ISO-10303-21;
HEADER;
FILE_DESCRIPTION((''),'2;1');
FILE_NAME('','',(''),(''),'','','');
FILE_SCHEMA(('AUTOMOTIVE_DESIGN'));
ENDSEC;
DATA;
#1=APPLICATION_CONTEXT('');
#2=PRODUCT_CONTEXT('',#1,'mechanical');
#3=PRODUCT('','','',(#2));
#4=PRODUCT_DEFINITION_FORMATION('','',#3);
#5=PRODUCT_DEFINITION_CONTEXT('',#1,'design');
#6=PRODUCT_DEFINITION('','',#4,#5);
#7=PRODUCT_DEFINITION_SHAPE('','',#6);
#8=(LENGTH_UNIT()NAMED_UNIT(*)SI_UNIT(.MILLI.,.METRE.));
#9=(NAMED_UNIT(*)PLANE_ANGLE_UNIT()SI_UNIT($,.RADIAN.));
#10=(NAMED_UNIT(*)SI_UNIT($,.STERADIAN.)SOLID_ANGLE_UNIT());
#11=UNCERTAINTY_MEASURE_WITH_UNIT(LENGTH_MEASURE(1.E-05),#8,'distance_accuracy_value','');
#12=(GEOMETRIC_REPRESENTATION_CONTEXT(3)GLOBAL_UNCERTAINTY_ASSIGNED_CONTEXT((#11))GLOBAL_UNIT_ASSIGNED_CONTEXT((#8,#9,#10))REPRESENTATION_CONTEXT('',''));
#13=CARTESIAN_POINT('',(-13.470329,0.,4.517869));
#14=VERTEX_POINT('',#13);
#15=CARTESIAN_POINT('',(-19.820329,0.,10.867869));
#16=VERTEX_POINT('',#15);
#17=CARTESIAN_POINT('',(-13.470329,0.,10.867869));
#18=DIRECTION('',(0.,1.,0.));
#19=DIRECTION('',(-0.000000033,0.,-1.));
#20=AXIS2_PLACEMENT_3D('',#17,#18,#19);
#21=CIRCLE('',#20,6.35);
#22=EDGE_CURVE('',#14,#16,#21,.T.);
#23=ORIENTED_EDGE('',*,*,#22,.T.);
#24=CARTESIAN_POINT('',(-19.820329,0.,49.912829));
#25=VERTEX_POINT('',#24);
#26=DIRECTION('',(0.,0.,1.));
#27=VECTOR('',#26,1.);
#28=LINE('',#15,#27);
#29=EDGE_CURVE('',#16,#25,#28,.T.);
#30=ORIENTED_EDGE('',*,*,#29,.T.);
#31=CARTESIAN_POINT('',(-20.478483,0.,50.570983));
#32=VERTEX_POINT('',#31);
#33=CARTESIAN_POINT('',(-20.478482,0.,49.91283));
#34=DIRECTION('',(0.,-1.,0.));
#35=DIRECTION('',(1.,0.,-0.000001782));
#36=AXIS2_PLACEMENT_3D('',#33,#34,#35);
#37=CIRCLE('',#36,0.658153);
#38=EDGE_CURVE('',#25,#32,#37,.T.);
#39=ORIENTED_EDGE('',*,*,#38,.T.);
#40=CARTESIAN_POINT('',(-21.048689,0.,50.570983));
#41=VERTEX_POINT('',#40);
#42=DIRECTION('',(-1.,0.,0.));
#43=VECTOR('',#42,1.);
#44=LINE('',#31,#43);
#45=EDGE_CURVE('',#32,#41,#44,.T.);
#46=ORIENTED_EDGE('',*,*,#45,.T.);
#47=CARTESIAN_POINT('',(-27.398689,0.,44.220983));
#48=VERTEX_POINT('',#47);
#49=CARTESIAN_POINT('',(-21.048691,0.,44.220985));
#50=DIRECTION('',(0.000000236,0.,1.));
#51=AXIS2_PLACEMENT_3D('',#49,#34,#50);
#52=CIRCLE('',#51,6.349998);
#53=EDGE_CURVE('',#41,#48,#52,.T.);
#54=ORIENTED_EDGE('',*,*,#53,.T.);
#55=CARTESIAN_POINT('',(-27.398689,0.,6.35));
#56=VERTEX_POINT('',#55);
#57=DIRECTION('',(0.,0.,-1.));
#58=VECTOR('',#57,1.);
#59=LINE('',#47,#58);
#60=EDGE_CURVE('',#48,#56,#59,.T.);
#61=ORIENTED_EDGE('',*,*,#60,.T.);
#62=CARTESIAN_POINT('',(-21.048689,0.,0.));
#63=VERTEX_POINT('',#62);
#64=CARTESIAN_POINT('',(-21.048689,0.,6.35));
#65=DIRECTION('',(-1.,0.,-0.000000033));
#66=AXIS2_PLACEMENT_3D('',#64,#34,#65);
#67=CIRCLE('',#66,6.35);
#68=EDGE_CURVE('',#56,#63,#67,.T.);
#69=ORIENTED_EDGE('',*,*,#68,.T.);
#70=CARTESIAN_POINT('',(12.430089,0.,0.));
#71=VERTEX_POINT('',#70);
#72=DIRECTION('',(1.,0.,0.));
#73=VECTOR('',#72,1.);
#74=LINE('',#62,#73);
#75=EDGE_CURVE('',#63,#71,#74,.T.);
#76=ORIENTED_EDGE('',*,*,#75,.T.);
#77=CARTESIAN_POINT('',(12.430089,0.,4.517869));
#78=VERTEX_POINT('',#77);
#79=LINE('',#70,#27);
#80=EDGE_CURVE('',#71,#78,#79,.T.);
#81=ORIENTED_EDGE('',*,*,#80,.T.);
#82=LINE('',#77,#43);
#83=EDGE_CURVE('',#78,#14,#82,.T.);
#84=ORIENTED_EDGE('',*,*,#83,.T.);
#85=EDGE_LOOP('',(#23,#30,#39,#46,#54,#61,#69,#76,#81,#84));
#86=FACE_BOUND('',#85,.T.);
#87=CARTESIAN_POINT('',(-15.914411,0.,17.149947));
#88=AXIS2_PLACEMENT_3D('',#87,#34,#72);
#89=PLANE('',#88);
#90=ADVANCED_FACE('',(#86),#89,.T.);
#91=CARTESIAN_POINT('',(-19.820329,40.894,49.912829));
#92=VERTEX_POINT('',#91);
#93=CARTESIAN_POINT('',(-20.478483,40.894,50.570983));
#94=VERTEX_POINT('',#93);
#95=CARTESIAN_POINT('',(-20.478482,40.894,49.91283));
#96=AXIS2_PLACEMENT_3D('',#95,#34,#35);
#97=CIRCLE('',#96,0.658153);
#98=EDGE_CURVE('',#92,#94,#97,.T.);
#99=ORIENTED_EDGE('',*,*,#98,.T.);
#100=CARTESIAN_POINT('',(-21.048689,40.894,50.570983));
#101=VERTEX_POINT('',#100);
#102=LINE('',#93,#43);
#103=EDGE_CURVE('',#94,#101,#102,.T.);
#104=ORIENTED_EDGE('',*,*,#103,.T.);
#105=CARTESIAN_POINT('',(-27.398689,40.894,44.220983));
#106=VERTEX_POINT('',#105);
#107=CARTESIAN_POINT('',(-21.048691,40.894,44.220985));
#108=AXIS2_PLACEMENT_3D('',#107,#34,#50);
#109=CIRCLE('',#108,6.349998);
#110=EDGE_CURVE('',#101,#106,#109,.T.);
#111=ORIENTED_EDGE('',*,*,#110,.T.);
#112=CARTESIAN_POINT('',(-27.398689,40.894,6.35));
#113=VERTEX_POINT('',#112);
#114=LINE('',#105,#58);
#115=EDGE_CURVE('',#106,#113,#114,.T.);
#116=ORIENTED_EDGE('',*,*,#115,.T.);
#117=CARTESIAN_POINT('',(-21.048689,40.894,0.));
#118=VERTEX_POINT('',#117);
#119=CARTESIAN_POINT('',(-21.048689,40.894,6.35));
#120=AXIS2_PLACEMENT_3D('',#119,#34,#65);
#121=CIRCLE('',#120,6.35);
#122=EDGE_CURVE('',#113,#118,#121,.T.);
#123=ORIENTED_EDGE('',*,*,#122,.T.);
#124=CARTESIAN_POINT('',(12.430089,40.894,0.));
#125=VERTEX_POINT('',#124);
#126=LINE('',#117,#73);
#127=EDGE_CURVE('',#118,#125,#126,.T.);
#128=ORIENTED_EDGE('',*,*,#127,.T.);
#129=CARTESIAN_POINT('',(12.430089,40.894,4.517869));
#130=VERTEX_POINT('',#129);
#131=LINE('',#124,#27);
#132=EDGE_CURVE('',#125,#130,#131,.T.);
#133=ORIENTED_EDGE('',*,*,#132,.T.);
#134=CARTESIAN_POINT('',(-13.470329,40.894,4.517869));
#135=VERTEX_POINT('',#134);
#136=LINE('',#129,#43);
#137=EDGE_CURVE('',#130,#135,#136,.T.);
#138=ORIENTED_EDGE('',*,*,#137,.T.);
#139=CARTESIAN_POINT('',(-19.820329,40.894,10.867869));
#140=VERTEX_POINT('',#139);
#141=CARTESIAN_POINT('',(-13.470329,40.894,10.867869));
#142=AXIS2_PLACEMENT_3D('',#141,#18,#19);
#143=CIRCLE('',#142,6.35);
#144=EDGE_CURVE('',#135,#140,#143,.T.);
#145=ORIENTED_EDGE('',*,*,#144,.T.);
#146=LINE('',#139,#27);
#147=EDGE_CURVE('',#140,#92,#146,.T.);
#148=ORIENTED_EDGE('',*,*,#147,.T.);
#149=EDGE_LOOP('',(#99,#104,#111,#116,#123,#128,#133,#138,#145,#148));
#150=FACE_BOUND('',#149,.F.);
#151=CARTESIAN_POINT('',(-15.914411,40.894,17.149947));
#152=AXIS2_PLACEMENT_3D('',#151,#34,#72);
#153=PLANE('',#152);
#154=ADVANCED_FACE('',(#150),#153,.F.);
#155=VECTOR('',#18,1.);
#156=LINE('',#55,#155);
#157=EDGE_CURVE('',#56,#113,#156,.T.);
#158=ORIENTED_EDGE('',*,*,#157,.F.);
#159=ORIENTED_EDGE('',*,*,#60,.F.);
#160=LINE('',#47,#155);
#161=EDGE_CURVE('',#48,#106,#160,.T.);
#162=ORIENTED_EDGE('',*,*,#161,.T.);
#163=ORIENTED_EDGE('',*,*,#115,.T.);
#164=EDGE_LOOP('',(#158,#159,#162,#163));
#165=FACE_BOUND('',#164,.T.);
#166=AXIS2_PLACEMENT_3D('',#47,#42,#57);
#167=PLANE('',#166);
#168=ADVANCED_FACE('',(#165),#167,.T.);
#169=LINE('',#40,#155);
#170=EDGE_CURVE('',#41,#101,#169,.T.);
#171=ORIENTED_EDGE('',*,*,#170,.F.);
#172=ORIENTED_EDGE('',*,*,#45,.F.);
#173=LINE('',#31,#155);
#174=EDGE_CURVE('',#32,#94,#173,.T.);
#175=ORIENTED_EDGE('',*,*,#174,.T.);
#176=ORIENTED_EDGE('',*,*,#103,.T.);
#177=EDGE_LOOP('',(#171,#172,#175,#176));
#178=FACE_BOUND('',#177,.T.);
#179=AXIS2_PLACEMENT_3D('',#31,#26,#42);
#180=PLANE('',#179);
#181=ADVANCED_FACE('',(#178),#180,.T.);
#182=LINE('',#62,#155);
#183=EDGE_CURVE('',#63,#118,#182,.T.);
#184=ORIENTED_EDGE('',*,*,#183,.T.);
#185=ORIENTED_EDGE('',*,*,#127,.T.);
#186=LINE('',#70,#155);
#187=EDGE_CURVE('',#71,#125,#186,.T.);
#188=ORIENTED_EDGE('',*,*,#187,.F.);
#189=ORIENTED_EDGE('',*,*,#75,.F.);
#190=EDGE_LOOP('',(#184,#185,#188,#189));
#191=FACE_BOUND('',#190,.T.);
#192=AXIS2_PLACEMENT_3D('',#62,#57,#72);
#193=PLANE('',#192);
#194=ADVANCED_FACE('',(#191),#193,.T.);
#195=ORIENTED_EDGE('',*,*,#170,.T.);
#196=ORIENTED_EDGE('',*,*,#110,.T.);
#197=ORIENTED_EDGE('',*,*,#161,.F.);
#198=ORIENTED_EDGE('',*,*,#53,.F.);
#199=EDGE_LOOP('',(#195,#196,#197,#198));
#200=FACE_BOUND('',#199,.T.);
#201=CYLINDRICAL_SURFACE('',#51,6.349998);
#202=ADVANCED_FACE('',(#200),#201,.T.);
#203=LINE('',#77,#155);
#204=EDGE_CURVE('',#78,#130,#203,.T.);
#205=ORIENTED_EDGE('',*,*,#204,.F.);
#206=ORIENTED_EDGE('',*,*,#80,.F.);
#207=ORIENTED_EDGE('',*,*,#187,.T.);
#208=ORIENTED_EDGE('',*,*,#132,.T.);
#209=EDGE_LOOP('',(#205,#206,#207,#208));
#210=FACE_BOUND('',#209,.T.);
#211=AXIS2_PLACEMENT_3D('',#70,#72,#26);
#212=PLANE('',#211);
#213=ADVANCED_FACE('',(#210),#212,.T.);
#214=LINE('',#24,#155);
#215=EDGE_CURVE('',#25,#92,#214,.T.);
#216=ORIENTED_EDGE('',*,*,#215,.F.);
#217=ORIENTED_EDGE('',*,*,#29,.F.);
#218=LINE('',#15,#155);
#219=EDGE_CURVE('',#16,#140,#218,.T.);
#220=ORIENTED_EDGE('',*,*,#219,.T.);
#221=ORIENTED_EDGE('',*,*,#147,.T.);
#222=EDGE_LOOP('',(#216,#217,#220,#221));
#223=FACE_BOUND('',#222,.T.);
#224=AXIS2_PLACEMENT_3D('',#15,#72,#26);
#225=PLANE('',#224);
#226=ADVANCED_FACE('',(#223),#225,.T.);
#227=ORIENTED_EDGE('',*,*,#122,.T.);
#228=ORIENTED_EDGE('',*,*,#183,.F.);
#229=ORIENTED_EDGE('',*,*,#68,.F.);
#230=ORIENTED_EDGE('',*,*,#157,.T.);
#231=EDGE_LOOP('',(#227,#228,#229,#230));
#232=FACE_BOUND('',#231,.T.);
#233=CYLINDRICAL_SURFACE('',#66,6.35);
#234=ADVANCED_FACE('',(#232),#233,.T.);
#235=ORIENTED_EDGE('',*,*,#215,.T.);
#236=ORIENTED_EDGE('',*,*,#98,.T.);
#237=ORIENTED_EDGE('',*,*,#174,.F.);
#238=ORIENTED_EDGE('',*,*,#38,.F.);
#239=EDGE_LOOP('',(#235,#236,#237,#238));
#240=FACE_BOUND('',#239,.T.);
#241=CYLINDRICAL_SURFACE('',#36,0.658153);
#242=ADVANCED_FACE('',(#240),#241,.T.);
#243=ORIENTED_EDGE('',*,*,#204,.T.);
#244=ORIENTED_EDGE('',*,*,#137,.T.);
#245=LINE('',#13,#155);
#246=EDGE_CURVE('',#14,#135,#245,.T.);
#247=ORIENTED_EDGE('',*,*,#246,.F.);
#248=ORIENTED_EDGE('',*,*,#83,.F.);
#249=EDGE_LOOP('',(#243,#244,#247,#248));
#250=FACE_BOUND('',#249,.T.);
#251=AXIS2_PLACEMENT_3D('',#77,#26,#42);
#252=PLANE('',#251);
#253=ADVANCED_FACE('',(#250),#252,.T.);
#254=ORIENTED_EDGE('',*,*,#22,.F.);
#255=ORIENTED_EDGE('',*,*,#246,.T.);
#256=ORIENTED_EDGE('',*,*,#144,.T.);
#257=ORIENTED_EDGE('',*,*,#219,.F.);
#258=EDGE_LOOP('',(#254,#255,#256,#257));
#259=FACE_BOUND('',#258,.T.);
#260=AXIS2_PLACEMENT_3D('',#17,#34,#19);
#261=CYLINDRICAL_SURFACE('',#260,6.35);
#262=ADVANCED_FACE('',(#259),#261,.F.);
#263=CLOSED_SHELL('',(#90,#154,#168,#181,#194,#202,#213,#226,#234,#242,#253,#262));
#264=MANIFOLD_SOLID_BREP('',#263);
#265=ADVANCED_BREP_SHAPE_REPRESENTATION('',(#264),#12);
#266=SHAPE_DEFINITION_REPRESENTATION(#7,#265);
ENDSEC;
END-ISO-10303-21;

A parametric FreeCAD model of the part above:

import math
import FreeCAD as App
import Part
import Sketcher
from FreeCAD import Vector
Q = App.Units.Quantity

doc = App.newDocument("Part")
body = doc.addObject("PartDesign::Body", "Body")

# Sketch on XZ plane
sketch1 = doc.addObject("Sketcher::SketchObject", "Sketch")
body.addObject(sketch1)
sketch1.AttachmentSupport = (doc.XZ_Plane, [""])
sketch1.MapMode = "FlatFace"
sketch1.addGeometry(Part.ArcOfCircle(Part.Circle(Vector(-20.5, 49.9, 0), Vector(0, 0, 1), 0.7), math.radians(0), math.radians(90)), False)
sketch1.addGeometry(Part.LineSegment(Vector(-20.5, 50.6, 0), Vector(-21, 50.6, 0)), False)
sketch1.addGeometry(Part.ArcOfCircle(Part.Circle(Vector(-21, 44.2, 0), Vector(0, 0, 1), 6.3), math.radians(90), math.radians(180)), False)
sketch1.addGeometry(Part.LineSegment(Vector(-27.4, 44.2, 0), Vector(-27.4, 6.3, 0)), False)
sketch1.addGeometry(Part.ArcOfCircle(Part.Circle(Vector(-21, 6.4, 0), Vector(0, 0, 1), 6.4), math.radians(-180), math.radians(-90)), False)
sketch1.addGeometry(Part.LineSegment(Vector(-21, 0, 0), Vector(12.4, 0, 0)), False)
sketch1.addGeometry(Part.LineSegment(Vector(12.4, 0, 0), Vector(12.4, 4.5, 0)), False)
sketch1.addGeometry(Part.LineSegment(Vector(12.4, 4.5, 0), Vector(-13.5, 4.5, 0)), False)
sketch1.addGeometry(Part.ArcOfCircle(Part.Circle(Vector(-13.5, 10.9, 0), Vector(0, 0, 1), 6.4), math.radians(-180), math.radians(-90)), False)
sketch1.addGeometry(Part.LineSegment(Vector(-19.8, 10.9, 0), Vector(-19.8, 49.9, 0)), False)
sketch1.addConstraint(Sketcher.Constraint("Tangent", 0, 2, 1, 1))
sketch1.addConstraint(Sketcher.Constraint("Tangent", 1, 2, 2, 1))
sketch1.addConstraint(Sketcher.Constraint("Tangent", 2, 2, 3, 1))
sketch1.addConstraint(Sketcher.Constraint("Tangent", 3, 2, 4, 1))
sketch1.addConstraint(Sketcher.Constraint("Tangent", 4, 2, 5, 1))
sketch1.addConstraint(Sketcher.Constraint("Coincident", 5, 2, 6, 1))
sketch1.addConstraint(Sketcher.Constraint("Coincident", 6, 2, 7, 1))
sketch1.addConstraint(Sketcher.Constraint("Tangent", 7, 2, 8, 2))
sketch1.addConstraint(Sketcher.Constraint("Tangent", 8, 1, 9, 1))
sketch1.addConstraint(Sketcher.Constraint("Tangent", 9, 2, 0, 1))
sketch1.addConstraint(Sketcher.Constraint("Horizontal", 1))
sketch1.addConstraint(Sketcher.Constraint("Vertical", 3))
sketch1.addConstraint(Sketcher.Constraint("Horizontal", 5))
sketch1.addConstraint(Sketcher.Constraint("Vertical", 6))
sketch1.addConstraint(Sketcher.Constraint("Horizontal", 7))
sketch1.addConstraint(Sketcher.Constraint("Vertical", 9))
sketch1.addConstraint(Sketcher.Constraint("Equal", 2, 4))
sketch1.addConstraint(Sketcher.Constraint("Equal", 4, 8))
sketch1.addConstraint(Sketcher.Constraint("PointOnObject", 4, 2, -1))
sketch1.addConstraint(Sketcher.Constraint("Radius", 2, Q("0.2499999 in")))
sketch1.addConstraint(Sketcher.Constraint("Radius", 0, Q("0.658153 mm")))
sketch1.addConstraint(Sketcher.Constraint("DistanceX", 7, 2, 7, 1, Q("25.900418 mm")))
sketch1.addConstraint(Sketcher.Constraint("DistanceY", 6, 1, 6, 2, Q("4.517869 mm")))
sketch1.addConstraint(Sketcher.Constraint("DistanceY", 9, 1, 9, 2, Q("39.04496 mm")))
sketch1.addConstraint(Sketcher.Constraint("DistanceX", 1, 2, 1, 1, Q("0.570206 mm")))
sketch1.addConstraint(Sketcher.Constraint("DistanceX", 0, 3, -1, 1, Q("20.478482 mm")))
pad1 = doc.addObject("PartDesign::Pad", "Pad")
body.addObject(pad1)
pad1.Profile = sketch1
pad1.Length = Q("1.61 in")
pad1.Reversed = True

doc.recompute()
